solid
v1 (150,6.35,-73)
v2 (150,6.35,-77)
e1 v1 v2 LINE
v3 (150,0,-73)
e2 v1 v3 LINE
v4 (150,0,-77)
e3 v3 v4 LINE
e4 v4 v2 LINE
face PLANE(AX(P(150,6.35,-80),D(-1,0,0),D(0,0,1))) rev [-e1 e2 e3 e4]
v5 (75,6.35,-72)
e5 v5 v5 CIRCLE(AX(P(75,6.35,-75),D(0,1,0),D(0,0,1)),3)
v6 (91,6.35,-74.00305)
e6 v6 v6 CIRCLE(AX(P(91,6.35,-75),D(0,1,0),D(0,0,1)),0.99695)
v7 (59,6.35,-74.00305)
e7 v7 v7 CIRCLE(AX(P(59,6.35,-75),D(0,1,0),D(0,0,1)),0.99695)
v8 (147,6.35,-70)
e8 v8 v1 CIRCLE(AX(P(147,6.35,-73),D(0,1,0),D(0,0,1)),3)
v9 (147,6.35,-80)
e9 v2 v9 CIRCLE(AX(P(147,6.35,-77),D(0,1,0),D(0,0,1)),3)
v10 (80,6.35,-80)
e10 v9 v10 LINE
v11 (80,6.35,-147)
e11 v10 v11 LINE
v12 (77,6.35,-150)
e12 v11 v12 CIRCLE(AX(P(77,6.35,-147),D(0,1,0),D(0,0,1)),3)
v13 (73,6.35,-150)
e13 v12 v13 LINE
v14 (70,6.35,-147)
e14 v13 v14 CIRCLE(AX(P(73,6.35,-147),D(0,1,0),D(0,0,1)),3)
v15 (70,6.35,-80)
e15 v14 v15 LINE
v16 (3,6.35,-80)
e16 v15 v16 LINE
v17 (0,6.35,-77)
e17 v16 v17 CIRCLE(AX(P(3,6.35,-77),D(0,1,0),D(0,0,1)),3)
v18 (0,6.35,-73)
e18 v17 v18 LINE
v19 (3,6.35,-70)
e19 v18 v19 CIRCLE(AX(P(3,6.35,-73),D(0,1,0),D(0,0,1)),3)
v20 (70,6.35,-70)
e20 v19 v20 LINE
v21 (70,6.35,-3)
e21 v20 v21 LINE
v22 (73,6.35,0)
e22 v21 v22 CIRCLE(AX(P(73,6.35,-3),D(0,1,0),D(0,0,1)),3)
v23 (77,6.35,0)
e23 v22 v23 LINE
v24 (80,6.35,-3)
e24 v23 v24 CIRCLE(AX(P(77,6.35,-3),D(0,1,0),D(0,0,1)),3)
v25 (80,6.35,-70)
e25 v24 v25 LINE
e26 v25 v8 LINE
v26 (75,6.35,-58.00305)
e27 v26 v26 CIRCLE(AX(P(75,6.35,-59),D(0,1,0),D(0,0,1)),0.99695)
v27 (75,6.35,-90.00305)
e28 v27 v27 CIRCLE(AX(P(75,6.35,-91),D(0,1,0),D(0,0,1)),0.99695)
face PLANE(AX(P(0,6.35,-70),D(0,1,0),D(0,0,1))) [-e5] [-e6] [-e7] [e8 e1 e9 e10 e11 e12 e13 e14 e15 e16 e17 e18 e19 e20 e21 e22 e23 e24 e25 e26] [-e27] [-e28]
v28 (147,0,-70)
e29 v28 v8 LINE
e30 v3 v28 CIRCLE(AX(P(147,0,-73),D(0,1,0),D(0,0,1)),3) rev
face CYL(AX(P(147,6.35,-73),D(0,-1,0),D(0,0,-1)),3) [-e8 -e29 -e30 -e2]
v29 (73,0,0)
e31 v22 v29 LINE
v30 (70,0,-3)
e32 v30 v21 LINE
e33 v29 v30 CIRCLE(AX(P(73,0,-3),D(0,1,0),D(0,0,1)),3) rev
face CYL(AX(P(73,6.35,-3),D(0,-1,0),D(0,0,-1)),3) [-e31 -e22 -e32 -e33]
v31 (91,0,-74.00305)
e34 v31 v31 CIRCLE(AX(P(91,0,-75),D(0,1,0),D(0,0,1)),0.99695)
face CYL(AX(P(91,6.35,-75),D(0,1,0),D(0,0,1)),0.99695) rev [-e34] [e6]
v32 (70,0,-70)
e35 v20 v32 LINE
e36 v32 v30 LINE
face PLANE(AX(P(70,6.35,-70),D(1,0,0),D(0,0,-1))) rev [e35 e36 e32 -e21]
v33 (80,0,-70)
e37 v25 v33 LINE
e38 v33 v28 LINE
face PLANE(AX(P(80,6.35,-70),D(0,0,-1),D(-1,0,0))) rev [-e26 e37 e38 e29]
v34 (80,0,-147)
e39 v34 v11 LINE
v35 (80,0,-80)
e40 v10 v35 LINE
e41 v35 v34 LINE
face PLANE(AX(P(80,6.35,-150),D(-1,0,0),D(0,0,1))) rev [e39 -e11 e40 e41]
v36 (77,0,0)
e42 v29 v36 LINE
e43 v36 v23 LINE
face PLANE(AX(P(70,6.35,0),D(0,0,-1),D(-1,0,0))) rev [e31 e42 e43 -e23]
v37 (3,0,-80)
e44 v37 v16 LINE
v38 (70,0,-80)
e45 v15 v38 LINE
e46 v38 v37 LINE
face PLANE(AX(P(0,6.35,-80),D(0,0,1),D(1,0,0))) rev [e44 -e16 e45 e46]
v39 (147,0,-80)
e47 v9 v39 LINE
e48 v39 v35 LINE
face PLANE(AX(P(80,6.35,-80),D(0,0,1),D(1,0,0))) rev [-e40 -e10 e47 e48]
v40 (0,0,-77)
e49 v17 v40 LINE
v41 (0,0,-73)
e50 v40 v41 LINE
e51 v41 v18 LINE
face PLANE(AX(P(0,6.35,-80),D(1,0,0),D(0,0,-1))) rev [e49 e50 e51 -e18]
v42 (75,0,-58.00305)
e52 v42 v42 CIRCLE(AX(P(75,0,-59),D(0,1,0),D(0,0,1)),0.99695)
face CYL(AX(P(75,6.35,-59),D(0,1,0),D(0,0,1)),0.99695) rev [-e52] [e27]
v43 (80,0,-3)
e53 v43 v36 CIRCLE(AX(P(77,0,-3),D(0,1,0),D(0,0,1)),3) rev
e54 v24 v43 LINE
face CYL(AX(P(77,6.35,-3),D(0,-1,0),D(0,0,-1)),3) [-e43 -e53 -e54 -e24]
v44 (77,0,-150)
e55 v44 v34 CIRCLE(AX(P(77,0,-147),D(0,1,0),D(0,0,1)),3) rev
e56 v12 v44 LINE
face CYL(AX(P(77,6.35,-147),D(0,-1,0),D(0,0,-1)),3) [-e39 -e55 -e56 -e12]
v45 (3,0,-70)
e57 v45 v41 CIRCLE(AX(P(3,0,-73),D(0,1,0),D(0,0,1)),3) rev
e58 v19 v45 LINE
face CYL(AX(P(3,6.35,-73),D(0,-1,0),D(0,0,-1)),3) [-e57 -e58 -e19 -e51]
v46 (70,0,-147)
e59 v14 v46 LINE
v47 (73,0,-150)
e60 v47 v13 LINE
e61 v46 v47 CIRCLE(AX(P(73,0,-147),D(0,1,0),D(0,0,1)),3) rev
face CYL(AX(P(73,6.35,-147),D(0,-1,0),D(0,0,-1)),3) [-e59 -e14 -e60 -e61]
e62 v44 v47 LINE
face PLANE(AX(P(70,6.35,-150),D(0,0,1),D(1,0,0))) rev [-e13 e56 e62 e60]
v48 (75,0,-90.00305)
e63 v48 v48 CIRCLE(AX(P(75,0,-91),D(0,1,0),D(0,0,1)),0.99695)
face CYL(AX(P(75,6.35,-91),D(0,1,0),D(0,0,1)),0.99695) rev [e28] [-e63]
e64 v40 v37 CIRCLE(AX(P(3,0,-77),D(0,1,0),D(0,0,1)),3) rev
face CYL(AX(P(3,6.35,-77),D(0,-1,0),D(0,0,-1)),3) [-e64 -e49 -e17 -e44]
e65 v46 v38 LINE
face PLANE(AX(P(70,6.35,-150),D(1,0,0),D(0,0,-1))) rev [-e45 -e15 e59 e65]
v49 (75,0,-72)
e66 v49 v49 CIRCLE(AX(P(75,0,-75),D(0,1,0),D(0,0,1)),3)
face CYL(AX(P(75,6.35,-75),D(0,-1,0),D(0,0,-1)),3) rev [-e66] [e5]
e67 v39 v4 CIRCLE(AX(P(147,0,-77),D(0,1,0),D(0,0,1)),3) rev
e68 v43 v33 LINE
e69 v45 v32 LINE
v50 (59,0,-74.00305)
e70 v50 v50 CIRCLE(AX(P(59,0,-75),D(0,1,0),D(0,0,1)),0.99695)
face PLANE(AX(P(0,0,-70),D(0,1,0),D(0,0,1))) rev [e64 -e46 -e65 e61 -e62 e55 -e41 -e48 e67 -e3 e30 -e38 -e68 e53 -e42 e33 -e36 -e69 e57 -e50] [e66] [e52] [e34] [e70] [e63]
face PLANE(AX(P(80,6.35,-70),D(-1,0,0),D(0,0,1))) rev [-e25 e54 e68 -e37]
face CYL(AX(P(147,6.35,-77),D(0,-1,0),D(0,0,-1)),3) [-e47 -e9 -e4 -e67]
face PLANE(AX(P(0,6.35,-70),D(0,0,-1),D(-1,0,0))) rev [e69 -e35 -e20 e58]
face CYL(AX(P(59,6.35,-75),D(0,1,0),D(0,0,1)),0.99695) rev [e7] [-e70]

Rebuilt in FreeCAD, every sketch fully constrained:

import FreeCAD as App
import Part
import Sketcher
from FreeCAD import Vector


def edges_at(feature, points):
    """Names of the edges that pass closest to the given points."""
    edges = feature.Shape.Edges
    near = lambda p: min(range(len(edges)), key=lambda i: edges[i].distToShape(Part.Vertex(*p))[0])
    return sorted({f"Edge{near(p) + 1}" for p in points})

doc = App.newDocument("Part")
body = doc.addObject("PartDesign::Body", "Body")

# Sketch on XZ plane
sketch1 = doc.addObject("Sketcher::SketchObject", "Sketch")
body.addObject(sketch1)
sketch1.AttachmentSupport = (doc.XZ_Plane, [""])
sketch1.MapMode = "FlatFace"
sketch1.addGeometry([
    Part.LineSegment(Vector(150, -80, 0), Vector(80, -80, 0)),  # 0
    Part.LineSegment(Vector(80, -80, 0), Vector(80, -150, 0)),  # 1
    Part.LineSegment(Vector(80, -150, 0), Vector(70, -150, 0)),  # 2
    Part.LineSegment(Vector(70, -150, 0), Vector(70, -80, 0)),  # 3
    Part.LineSegment(Vector(70, -80, 0), Vector(0, -80, 0)),  # 4
    Part.LineSegment(Vector(0, -80, 0), Vector(0, -70, 0)),  # 5
    Part.LineSegment(Vector(0, -70, 0), Vector(70, -70, 0)),  # 6
    Part.LineSegment(Vector(70, -70, 0), Vector(70, 0, 0)),  # 7
    Part.LineSegment(Vector(70, 0, 0), Vector(80, 0, 0)),  # 8
    Part.LineSegment(Vector(80, 0, 0), Vector(80, -70, 0)),  # 9
    Part.LineSegment(Vector(80, -70, 0), Vector(150, -70, 0)),  # 10
    Part.LineSegment(Vector(150, -70, 0), Vector(150, -80, 0)),  # 11
], False)
sketch1.addConstraint([
    Sketcher.Constraint("Coincident", 0, 2, 1, 1),
    Sketcher.Constraint("Coincident", 1, 2, 2, 1),
    Sketcher.Constraint("Coincident", 2, 2, 3, 1),
    Sketcher.Constraint("Coincident", 3, 2, 4, 1),
    Sketcher.Constraint("Coincident", 4, 2, 5, 1),
    Sketcher.Constraint("Coincident", 5, 2, 6, 1),
    Sketcher.Constraint("Coincident", 6, 2, 7, 1),
    Sketcher.Constraint("Coincident", 7, 2, 8, 1),
    Sketcher.Constraint("Coincident", 8, 2, 9, 1),
    Sketcher.Constraint("Coincident", 9, 2, 10, 1),
    Sketcher.Constraint("Coincident", 10, 2, 11, 1),
    Sketcher.Constraint("Coincident", 11, 2, 0, 1),
    Sketcher.Constraint("Horizontal", 0),
    Sketcher.Constraint("Vertical", 1),
    Sketcher.Constraint("Horizontal", 2),
    Sketcher.Constraint("Vertical", 3),
    Sketcher.Constraint("Horizontal", 4),
    Sketcher.Constraint("Vertical", 5),
    Sketcher.Constraint("Horizontal", 6),
    Sketcher.Constraint("Vertical", 7),
    Sketcher.Constraint("Horizontal", 8),
    Sketcher.Constraint("Vertical", 9),
    Sketcher.Constraint("Horizontal", 10),
    Sketcher.Constraint("Vertical", 11),
    Sketcher.Constraint("PointOnObject", 4, 2, -2),
    Sketcher.Constraint("PointOnObject", 7, 2, -1),
    Sketcher.Constraint("Horizontal", 0, 2, 3, 2),
    Sketcher.Constraint("Horizontal", 6, 2, 9, 2),
    Sketcher.Constraint("Vertical", 3, 2, 6, 2),
    Sketcher.Constraint("Vertical", 1, 2, 8, 2),
    Sketcher.Constraint("Equal", 0, 4),
    Sketcher.Constraint("Equal", 10, 1),
    Sketcher.Constraint("Equal", 8, 5),
    Sketcher.Constraint("Equal", 3, 7),
    Sketcher.Constraint("DistanceX", 0, 2, 0, 1, 70.0),
    Sketcher.Constraint("DistanceX", 2, 2, 2, 1, 10.0),
])
pad1 = doc.addObject("PartDesign::Pad", "Pad")
body.addObject(pad1)
pad1.Profile = sketch1
pad1.Length = 6.35
pad1.Reversed = True

# Sketch on XZ plane
sketch2 = doc.addObject("Sketcher::SketchObject", "Sketch001")
body.addObject(sketch2)
sketch2.AttachmentSupport = (doc.XZ_Plane, [""])
sketch2.MapMode = "FlatFace"
sketch2.AttachmentOffset = App.Placement(Vector(0, 0, -6.35), App.Rotation())
sketch2.addGeometry([
    Part.Circle(Vector(75, -91, 0), Vector(0, 0, 1), 1),
    Part.Circle(Vector(59, -75, 0), Vector(0, 0, 1), 1),
    Part.Circle(Vector(75, -59, 0), Vector(0, 0, 1), 1),
    Part.Circle(Vector(91, -75, 0), Vector(0, 0, 1), 1),
], False)
sketch2.addConstraint([
    Sketcher.Constraint("Equal", 0, 1),
    Sketcher.Constraint("Equal", 1, 2),
    Sketcher.Constraint("Equal", 2, 3),
    Sketcher.Constraint("Horizontal", 1, 3, 3, 3),
    Sketcher.Constraint("Vertical", 0, 3, 2, 3),
    Sketcher.Constraint("DistanceX", -1, 1, 0, 3, 75.0),
    Sketcher.Constraint("DistanceY", 0, 3, -1, 1, 91.0),
    Sketcher.Constraint("DistanceX", -1, 1, 1, 3, 59.0),
    Sketcher.Constraint("DistanceY", 1, 3, -1, 1, 75.0),
    Sketcher.Constraint("DistanceY", 2, 3, -1, 1, 59.0),
    Sketcher.Constraint("DistanceX", -1, 1, 3, 3, 91.0),
    Sketcher.Constraint("Diameter", 0, 1.9939),
])
doc.recompute()
hole = doc.addObject("PartDesign::Hole", "Hole")
body.addObject(hole)
hole.Profile = sketch2
hole.ThreadType = "None"
hole.Diameter = 1.9939
hole.DepthType = "Dimension"
hole.Depth = 7.67
hole.DrillPoint = "Angled"
hole.DrillPointAngle = 118
hole.Reversed = True
doc.recompute()

fillet = doc.addObject("PartDesign::Fillet", "Fillet")
body.addObject(fillet)
fillet.Base = (hole, edges_at(hole, [
    (0, 3.175, -80),
    (70, 3.175, -150),
    (80, 3.175, -150),
    (150, 3.175, -80),
    (150, 3.175, -70),
    (80, 3.175, 0),
    (70, 3.175, 0),
    (0, 3.175, -70),
]))
fillet.Radius = 3

# Sketch on XZ plane
sketch3 = doc.addObject("Sketcher::SketchObject", "Sketch002")
body.addObject(sketch3)
sketch3.AttachmentSupport = (doc.XZ_Plane, [""])
sketch3.MapMode = "FlatFace"
sketch3.addGeometry(Part.Circle(Vector(75, -75, 0), Vector(0, 0, 1), 3), False)
sketch3.addConstraint([
    Sketcher.Constraint("Diameter", 0, 6.0),
    Sketcher.Constraint("DistanceX", -1, 1, 0, 3, 75.0),
    Sketcher.Constraint("DistanceY", 0, 3, -1, 1, 75.0),
])
pocket1 = doc.addObject("PartDesign::Pocket", "Pocket")
body.addObject(pocket1)
pocket1.Profile = sketch3
pocket1.Type = "ThroughAll"

doc.recompute()
